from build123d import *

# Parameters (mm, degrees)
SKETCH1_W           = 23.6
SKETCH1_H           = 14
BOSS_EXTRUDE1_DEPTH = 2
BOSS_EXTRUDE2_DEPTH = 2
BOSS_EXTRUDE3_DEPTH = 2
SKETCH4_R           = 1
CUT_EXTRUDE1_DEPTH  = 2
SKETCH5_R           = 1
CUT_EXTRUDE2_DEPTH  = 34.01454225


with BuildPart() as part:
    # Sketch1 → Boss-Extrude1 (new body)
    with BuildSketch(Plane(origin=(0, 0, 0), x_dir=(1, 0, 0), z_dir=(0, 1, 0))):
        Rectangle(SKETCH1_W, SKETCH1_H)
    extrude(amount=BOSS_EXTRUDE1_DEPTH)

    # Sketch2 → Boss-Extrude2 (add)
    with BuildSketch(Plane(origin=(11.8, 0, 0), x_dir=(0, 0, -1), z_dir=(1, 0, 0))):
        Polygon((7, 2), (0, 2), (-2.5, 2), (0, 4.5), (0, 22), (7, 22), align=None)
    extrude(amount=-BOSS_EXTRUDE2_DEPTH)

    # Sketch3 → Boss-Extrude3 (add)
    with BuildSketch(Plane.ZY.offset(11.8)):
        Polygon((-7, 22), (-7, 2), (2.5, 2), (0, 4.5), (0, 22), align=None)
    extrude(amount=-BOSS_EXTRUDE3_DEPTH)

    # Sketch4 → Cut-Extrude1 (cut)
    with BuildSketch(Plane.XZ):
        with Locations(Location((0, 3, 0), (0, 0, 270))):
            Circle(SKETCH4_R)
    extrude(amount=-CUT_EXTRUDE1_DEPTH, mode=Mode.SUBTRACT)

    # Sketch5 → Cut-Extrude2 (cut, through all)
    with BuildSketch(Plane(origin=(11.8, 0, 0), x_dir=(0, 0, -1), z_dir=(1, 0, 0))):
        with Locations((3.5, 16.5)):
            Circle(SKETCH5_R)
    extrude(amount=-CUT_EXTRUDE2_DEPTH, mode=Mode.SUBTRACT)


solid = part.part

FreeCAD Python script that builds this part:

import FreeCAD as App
import Part
import Sketcher

V = App.Vector
Q = App.Units.Quantity

doc = App.newDocument("Part")
body = doc.addObject("PartDesign::Body", "Body")

# Sketch on XZ plane
sketch1 = body.newObject("Sketcher::SketchObject", "Sketch")
sketch1.AttachmentSupport = (doc.getObject("XZ_Plane"), [""])
sketch1.MapMode = "FlatFace"
sketch1.addGeometry(Part.LineSegment(V(-12, -7, 0), V(-12, 7, 0)), False)
sketch1.addGeometry(Part.LineSegment(V(-12, 7, 0), V(12, 7, 0)), False)
sketch1.addGeometry(Part.LineSegment(V(12, 7, 0), V(12, -7, 0)), False)
sketch1.addGeometry(Part.LineSegment(V(12, -7, 0), V(-12, -7, 0)), False)
sketch1.addConstraint(Sketcher.Constraint("Coincident", 0, 2, 1, 1))
sketch1.addConstraint(Sketcher.Constraint("Coincident", 1, 2, 2, 1))
sketch1.addConstraint(Sketcher.Constraint("Coincident", 2, 2, 3, 1))
sketch1.addConstraint(Sketcher.Constraint("Coincident", 3, 2, 0, 1))
sketch1.addConstraint(Sketcher.Constraint("Vertical", 0))
sketch1.addConstraint(Sketcher.Constraint("Horizontal", 1))
sketch1.addConstraint(Sketcher.Constraint("Vertical", 2))
sketch1.addConstraint(Sketcher.Constraint("Horizontal", 3))
sketch1.addConstraint(Sketcher.Constraint("Symmetric", 0, 2, 2, 2, -1, 1))
sketch1.addConstraint(Sketcher.Constraint("DistanceY", 0, 1, 0, 2, Q("14 mm")))
sketch1.addConstraint(Sketcher.Constraint("DistanceX", 1, 1, 1, 2, Q("23.6 mm")))
pad1 = body.newObject("PartDesign::Pad", "Pad")
pad1.Profile = sketch1
pad1.Length = 2
pad1.Reversed = True

# Sketch on YZ plane
sketch2 = body.newObject("Sketcher::SketchObject", "Sketch001")
sketch2.AttachmentSupport = (doc.getObject("YZ_Plane"), [""])
sketch2.MapMode = "FlatFace"
sketch2.AttachmentOffset = App.Placement(V(0, 0, 11.8), App.Rotation())
sketch2.addGeometry(Part.LineSegment(V(2, 2.5, 0), V(2, -7, 0)), False)
sketch2.addGeometry(Part.LineSegment(V(2, -7, 0), V(22, -7, 0)), False)
sketch2.addGeometry(Part.LineSegment(V(22, -7, 0), V(22, 0, 0)), False)
sketch2.addGeometry(Part.LineSegment(V(22, 0, 0), V(4.5, 0, 0)), False)
sketch2.addGeometry(Part.LineSegment(V(4.5, 0, 0), V(2, 2.5, 0)), False)
sketch2.addConstraint(Sketcher.Constraint("Coincident", 0, 2, 1, 1))
sketch2.addConstraint(Sketcher.Constraint("Coincident", 1, 2, 2, 1))
sketch2.addConstraint(Sketcher.Constraint("Coincident", 2, 2, 3, 1))
sketch2.addConstraint(Sketcher.Constraint("Coincident", 3, 2, 4, 1))
sketch2.addConstraint(Sketcher.Constraint("Coincident", 4, 2, 0, 1))
sketch2.addConstraint(Sketcher.Constraint("Vertical", 0))
sketch2.addConstraint(Sketcher.Constraint("Horizontal", 1))
sketch2.addConstraint(Sketcher.Constraint("Vertical", 2))
sketch2.addConstraint(Sketcher.Constraint("Horizontal", 3))
sketch2.addConstraint(Sketcher.Constraint("PointOnObject", 2, 2, -1))
sketch2.addConstraint(Sketcher.Constraint("DistanceX", 1, 1, 1, 2, Q("20 mm")))
sketch2.addConstraint(Sketcher.Constraint("DistanceY", 2, 1, 2, 2, Q("7 mm")))
sketch2.addConstraint(Sketcher.Constraint("Angle", 4, Q("135 deg")))
sketch2.addConstraint(Sketcher.Constraint("DistanceX", 3, 2, 3, 1, Q("17.5 mm")))
sketch2.addConstraint(Sketcher.Constraint("DistanceX", -1, 1, 0, 2, Q("2 mm")))
pad2 = body.newObject("PartDesign::Pad", "Pad001")
pad2.Profile = sketch2
pad2.Length = 2
pad2.Reversed = True

# Sketch on YZ plane
sketch3 = body.newObject("Sketcher::SketchObject", "Sketch002")
sketch3.AttachmentSupport = (doc.getObject("YZ_Plane"), [""])
sketch3.MapMode = "FlatFace"
sketch3.AttachmentOffset = App.Placement(V(0, 0, -11.8), App.Rotation())
sketch3.addGeometry(Part.LineSegment(V(22, -7, 0), V(2, -7, 0)), False)
sketch3.addGeometry(Part.LineSegment(V(2, -7, 0), V(2, 2.5, 0)), False)
sketch3.addGeometry(Part.LineSegment(V(2, 2.5, 0), V(4.5, 0, 0)), False)
sketch3.addGeometry(Part.LineSegment(V(4.5, 0, 0), V(22, 0, 0)), False)
sketch3.addGeometry(Part.LineSegment(V(22, 0, 0), V(22, -7, 0)), False)
sketch3.addConstraint(Sketcher.Constraint("Coincident", 0, 2, 1, 1))
sketch3.addConstraint(Sketcher.Constraint("Coincident", 1, 2, 2, 1))
sketch3.addConstraint(Sketcher.Constraint("Coincident", 2, 2, 3, 1))
sketch3.addConstraint(Sketcher.Constraint("Coincident", 3, 2, 4, 1))
sketch3.addConstraint(Sketcher.Constraint("Coincident", 4, 2, 0, 1))
sketch3.addConstraint(Sketcher.Constraint("Horizontal", 0))
sketch3.addConstraint(Sketcher.Constraint("Vertical", 1))
sketch3.addConstraint(Sketcher.Constraint("Horizontal", 3))
sketch3.addConstraint(Sketcher.Constraint("Vertical", 4))
sketch3.addConstraint(Sketcher.Constraint("PointOnObject", 2, 2, -1))
sketch3.addConstraint(Sketcher.Constraint("DistanceX", 0, 2, 0, 1, Q("20 mm")))
sketch3.addConstraint(Sketcher.Constraint("DistanceY", 4, 2, 4, 1, Q("7 mm")))
sketch3.addConstraint(Sketcher.Constraint("Angle", 2, Q("-45 deg")))
sketch3.addConstraint(Sketcher.Constraint("DistanceX", 3, 1, 3, 2, Q("17.5 mm")))
sketch3.addConstraint(Sketcher.Constraint("DistanceX", -1, 1, 0, 2, Q("2 mm")))
pad3 = body.newObject("PartDesign::Pad", "Pad002")
pad3.Profile = sketch3
pad3.Length = 2

# Sketch on XZ plane
sketch4 = body.newObject("Sketcher::SketchObject", "Sketch003")
sketch4.AttachmentSupport = (doc.getObject("XZ_Plane"), [""])
sketch4.MapMode = "FlatFace"
sketch4.addGeometry(Part.Circle(V(0, 3, 0), V(0, 0, 1), 1), False)
sketch4.addConstraint(Sketcher.Constraint("PointOnObject", 0, 3, -2))
sketch4.addConstraint(Sketcher.Constraint("Diameter", 0, Q("2 mm")))
sketch4.addConstraint(Sketcher.Constraint("DistanceY", -1, 1, 0, 3, Q("3 mm")))
pocket1 = body.newObject("PartDesign::Pocket", "Pocket")
pocket1.Profile = sketch4
pocket1.Length = 2

# Sketch on YZ plane
sketch5 = body.newObject("Sketcher::SketchObject", "Sketch004")
sketch5.AttachmentSupport = (doc.getObject("YZ_Plane"), [""])
sketch5.MapMode = "FlatFace"
sketch5.AttachmentOffset = App.Placement(V(0, 0, 11.8), App.Rotation())
sketch5.addGeometry(Part.Circle(V(16.5, -3.5, 0), V(0, 0, 1), 1), False)
sketch5.addConstraint(Sketcher.Constraint("Diameter", 0, Q("2 mm")))
sketch5.addConstraint(Sketcher.Constraint("DistanceX", -1, 1, 0, 3, Q("16.5 mm")))
sketch5.addConstraint(Sketcher.Constraint("DistanceY", 0, 3, -1, 1, Q("3.5 mm")))
pocket2 = body.newObject("PartDesign::Pocket", "Pocket001")
pocket2.Profile = sketch5
pocket2.Type = "ThroughAll"

doc.recompute()
